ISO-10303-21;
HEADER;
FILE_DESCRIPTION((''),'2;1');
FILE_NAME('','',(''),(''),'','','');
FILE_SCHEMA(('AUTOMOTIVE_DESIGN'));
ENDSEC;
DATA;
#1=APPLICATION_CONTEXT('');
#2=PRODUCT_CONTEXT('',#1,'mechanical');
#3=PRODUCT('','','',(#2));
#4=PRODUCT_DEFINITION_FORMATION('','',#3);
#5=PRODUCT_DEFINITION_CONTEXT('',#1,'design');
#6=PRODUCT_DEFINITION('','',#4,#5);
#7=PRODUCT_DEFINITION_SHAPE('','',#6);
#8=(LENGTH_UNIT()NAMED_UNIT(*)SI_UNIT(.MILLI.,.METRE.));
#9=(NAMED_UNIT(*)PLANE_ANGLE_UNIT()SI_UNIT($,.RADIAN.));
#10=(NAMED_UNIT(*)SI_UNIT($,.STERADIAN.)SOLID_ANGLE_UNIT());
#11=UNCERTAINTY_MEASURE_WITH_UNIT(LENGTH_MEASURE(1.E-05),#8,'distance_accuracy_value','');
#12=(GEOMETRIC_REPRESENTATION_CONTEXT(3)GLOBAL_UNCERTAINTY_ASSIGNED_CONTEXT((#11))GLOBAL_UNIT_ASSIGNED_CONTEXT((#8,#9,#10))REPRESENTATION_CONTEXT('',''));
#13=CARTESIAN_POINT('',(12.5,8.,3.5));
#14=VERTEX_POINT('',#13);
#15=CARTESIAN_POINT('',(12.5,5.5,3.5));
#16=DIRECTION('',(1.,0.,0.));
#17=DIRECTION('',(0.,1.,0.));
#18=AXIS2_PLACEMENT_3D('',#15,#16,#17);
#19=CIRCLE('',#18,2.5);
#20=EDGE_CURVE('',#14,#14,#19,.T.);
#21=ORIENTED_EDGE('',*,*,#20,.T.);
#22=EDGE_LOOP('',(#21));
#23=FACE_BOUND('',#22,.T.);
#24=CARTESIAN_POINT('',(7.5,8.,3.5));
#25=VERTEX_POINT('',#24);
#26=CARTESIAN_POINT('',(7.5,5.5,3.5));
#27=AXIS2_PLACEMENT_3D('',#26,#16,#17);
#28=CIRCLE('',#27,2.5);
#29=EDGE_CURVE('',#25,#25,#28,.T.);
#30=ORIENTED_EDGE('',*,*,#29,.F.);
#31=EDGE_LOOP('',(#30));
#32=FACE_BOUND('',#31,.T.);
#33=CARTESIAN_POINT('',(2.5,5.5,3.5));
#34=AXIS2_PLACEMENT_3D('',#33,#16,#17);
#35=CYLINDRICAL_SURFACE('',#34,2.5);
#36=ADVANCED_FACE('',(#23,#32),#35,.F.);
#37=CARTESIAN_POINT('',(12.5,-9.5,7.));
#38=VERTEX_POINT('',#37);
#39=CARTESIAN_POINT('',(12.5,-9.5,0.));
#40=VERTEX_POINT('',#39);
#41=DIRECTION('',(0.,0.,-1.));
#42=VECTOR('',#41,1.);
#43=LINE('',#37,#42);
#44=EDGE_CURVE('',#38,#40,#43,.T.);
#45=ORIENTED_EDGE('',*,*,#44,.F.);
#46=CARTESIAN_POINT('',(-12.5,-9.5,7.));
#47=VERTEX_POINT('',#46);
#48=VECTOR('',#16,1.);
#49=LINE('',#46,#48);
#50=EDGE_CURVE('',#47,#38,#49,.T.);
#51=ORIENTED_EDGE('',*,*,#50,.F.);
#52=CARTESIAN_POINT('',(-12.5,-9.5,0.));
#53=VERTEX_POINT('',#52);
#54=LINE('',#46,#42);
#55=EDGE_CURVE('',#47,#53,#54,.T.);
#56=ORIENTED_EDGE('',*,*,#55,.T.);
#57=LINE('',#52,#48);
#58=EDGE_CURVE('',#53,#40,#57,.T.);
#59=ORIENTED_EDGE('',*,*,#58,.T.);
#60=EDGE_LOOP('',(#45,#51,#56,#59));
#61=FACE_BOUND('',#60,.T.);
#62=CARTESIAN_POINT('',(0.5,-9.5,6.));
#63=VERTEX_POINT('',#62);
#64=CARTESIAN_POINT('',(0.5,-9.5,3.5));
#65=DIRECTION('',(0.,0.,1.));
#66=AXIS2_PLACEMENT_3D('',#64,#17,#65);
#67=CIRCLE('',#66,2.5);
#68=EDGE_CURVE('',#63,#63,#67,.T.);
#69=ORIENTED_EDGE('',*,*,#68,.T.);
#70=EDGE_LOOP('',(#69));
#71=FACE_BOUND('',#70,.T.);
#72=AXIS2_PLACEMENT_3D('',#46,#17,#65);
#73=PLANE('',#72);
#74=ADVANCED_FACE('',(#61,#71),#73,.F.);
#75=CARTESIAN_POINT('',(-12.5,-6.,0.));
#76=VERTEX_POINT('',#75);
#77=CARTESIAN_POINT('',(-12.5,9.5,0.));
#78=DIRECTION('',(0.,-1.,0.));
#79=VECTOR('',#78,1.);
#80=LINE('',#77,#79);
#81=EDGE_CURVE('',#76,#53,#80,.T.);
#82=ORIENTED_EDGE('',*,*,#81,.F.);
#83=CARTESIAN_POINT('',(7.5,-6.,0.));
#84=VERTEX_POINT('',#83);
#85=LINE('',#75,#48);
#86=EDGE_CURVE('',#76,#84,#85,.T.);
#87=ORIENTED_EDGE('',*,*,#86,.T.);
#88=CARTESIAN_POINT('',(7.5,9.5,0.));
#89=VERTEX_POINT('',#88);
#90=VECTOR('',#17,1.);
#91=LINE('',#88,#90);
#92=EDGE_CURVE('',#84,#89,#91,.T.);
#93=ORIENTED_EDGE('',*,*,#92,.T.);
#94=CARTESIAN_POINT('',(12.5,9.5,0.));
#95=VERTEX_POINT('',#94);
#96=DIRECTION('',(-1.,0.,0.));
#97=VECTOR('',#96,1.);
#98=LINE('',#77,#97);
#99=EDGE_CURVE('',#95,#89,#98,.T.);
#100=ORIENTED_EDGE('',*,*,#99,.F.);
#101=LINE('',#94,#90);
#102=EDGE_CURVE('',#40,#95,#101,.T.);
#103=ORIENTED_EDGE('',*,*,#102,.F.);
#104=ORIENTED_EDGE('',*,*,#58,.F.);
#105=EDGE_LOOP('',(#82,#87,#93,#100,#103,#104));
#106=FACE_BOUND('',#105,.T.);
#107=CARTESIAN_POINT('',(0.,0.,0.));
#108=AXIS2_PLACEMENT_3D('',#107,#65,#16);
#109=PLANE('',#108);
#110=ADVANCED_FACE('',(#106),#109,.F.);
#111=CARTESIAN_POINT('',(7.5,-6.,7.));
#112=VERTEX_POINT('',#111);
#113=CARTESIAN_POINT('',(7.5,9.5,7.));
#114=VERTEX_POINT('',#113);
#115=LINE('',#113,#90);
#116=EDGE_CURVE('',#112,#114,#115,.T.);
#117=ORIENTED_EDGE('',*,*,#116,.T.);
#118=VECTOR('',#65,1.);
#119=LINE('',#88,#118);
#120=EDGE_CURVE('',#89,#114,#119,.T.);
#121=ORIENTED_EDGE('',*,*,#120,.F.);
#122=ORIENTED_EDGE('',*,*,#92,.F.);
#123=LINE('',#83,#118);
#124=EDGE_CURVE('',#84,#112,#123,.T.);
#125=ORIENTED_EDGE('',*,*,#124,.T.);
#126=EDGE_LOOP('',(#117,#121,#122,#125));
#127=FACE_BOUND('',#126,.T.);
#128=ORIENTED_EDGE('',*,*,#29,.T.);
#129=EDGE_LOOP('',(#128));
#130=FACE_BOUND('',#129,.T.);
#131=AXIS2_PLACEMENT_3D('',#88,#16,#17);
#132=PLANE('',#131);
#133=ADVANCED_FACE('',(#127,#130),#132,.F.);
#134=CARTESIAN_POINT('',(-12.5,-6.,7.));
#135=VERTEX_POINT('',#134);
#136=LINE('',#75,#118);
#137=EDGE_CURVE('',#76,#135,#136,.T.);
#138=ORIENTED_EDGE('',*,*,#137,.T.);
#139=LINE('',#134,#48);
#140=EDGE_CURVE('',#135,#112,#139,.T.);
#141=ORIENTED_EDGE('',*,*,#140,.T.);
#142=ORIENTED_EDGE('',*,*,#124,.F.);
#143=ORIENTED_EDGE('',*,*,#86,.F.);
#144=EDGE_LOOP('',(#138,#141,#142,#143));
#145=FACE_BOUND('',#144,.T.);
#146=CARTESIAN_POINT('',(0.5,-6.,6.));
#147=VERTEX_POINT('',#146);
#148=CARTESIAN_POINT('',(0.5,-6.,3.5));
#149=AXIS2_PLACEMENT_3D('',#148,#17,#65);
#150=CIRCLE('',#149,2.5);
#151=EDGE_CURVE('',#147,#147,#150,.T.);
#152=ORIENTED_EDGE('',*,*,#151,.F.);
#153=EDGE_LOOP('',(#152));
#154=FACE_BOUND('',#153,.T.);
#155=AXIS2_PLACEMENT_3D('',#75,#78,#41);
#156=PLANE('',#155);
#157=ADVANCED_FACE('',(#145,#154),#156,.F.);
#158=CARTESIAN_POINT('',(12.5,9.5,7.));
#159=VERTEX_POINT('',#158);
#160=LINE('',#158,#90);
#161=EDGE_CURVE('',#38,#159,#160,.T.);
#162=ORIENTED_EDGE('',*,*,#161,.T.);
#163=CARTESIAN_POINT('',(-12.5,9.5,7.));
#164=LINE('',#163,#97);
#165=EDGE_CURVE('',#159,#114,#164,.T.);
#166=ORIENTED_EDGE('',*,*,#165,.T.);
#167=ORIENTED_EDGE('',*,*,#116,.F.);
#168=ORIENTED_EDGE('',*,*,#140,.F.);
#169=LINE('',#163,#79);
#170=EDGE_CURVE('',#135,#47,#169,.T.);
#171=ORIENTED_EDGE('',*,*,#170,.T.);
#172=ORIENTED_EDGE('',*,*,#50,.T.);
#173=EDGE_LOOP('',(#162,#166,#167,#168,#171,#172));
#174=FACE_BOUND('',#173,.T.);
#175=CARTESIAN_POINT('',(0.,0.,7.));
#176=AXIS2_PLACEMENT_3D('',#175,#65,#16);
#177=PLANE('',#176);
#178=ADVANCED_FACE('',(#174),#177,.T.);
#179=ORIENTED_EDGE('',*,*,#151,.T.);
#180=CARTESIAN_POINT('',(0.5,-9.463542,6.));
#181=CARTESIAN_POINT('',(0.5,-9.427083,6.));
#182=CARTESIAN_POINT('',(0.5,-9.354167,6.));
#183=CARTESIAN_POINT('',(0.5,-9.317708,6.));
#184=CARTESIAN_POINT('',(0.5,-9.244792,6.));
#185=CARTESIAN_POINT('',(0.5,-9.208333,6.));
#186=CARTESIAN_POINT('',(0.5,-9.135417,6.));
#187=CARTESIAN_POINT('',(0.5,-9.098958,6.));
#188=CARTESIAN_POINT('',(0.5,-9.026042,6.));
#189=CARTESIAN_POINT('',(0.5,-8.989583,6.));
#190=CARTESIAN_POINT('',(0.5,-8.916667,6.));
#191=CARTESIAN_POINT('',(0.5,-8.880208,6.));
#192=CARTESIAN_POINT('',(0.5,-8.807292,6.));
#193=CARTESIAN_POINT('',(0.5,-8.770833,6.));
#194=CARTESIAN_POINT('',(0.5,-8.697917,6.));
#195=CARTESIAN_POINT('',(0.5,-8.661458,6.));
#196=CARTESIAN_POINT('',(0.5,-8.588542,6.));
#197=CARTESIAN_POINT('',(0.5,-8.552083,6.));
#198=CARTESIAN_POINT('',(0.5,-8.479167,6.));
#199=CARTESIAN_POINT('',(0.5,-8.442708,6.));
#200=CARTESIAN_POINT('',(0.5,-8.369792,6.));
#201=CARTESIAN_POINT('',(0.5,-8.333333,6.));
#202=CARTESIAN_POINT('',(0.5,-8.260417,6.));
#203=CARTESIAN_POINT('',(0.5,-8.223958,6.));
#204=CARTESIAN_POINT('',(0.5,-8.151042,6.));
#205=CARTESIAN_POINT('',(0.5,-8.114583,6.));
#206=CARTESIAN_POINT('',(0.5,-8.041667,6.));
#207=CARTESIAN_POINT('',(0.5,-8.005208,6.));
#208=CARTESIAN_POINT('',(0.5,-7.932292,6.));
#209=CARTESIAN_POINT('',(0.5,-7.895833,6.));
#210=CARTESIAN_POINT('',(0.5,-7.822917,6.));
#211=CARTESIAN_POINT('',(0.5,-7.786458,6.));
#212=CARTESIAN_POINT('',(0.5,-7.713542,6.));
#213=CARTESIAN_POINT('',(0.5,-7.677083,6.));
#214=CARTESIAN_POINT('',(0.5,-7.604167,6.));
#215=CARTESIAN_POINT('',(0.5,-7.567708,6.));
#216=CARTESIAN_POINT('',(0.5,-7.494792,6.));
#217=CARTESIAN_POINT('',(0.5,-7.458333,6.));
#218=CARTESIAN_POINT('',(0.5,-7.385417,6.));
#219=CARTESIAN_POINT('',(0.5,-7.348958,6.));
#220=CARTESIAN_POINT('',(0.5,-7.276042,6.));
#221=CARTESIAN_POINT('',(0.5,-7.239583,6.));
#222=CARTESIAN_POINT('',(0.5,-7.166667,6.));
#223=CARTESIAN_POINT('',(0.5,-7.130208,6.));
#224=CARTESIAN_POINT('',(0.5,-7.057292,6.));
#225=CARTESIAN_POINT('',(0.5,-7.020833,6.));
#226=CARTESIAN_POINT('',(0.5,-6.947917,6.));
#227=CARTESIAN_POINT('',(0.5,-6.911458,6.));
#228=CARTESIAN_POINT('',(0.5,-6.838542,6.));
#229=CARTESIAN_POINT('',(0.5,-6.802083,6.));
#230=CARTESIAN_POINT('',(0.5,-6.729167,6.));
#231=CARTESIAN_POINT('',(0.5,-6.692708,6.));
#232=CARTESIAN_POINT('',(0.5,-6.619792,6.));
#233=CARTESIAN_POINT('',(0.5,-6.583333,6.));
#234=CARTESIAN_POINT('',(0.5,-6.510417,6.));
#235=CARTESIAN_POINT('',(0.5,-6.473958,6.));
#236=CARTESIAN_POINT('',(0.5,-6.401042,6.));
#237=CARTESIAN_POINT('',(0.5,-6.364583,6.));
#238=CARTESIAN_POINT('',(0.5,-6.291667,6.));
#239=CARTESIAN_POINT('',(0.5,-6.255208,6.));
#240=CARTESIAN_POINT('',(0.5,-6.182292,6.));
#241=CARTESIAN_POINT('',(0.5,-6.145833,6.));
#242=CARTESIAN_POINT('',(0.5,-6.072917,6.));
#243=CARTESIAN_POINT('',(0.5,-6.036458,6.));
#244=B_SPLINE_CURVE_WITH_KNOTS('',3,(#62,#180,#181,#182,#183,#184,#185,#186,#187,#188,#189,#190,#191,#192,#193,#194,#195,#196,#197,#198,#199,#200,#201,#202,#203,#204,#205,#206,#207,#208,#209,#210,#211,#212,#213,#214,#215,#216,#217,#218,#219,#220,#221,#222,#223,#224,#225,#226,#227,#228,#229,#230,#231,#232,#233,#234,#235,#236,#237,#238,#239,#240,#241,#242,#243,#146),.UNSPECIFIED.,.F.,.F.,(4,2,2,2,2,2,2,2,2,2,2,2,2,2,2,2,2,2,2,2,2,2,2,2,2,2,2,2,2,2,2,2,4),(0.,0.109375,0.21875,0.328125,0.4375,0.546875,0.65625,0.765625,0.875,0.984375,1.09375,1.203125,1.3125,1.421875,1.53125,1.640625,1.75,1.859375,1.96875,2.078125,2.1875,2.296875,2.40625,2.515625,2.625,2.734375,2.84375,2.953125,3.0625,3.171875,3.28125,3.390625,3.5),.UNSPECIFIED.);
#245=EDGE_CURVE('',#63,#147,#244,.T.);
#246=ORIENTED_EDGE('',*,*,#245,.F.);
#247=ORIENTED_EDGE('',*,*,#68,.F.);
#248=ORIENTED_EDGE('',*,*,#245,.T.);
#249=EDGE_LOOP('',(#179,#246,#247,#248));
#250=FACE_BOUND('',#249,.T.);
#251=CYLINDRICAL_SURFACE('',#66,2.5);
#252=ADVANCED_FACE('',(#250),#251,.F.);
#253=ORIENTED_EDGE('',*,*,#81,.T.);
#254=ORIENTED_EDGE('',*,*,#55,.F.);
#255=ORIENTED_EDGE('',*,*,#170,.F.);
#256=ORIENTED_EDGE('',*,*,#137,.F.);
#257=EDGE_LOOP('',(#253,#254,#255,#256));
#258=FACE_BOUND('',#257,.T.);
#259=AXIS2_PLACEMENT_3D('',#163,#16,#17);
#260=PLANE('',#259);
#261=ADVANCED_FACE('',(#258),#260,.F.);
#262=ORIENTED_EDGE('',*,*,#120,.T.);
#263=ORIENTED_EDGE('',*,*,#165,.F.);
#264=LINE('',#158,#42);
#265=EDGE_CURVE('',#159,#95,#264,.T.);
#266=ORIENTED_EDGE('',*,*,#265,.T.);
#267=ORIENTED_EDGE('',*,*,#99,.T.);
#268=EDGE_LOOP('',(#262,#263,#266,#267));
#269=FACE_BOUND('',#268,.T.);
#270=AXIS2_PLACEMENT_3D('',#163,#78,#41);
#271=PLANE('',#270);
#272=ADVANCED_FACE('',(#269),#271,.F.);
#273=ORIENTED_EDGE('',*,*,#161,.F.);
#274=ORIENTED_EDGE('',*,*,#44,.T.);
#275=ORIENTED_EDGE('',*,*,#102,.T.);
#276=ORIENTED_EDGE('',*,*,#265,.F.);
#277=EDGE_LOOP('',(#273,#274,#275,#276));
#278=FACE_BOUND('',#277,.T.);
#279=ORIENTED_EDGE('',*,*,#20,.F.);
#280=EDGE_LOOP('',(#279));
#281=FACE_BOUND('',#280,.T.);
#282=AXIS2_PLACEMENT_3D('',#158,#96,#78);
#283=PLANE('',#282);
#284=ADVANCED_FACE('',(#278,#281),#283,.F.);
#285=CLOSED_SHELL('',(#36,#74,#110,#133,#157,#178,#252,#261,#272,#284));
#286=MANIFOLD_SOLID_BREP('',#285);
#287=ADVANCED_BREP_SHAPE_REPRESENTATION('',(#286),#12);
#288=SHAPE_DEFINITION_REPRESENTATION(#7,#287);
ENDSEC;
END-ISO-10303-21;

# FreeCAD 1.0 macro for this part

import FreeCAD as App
import Part
import Sketcher
from FreeCAD import Vector


def add_polygon(sketch, points):
    """Adds a closed chain of lines whose ends are joined by coincident constraints."""
    first, n = sketch.GeometryCount, len(points)
    for a, b in zip(points, points[1:] + points[:1]):
        sketch.addGeometry(Part.LineSegment(App.Vector(*a, 0), App.Vector(*b, 0)), False)
    for i in range(n):
        sketch.addConstraint(Sketcher.Constraint("Coincident", first + i, 2, first + (i + 1) % n, 1))

doc = App.newDocument("Part")
body = doc.addObject("PartDesign::Body", "Body")

sketch1 = body.newObject("Sketcher::SketchObject", "Sketch")
sketch1.AttachmentSupport = (doc.getObject("XY_Plane"), [""])
sketch1.MapMode = "FlatFace"
add_polygon(sketch1, [(-12, 10), (-12, -10), (12, -10), (12, 10)])
sketch1.addConstraint(Sketcher.Constraint("Vertical", 0))
sketch1.addConstraint(Sketcher.Constraint("Horizontal", 1))
sketch1.addConstraint(Sketcher.Constraint("Vertical", 2))
sketch1.addConstraint(Sketcher.Constraint("Horizontal", 3))
sketch1.addConstraint(Sketcher.Constraint("Symmetric", 0, 2, 2, 2, -1, 1))
sketch1.addConstraint(Sketcher.Constraint("DistanceX", 1, 1, 1, 2, 25.0))
sketch1.addConstraint(Sketcher.Constraint("DistanceY", 0, 2, 0, 1, 19.0))
pad1 = body.newObject("PartDesign::Pad", "Pad")
pad1.Profile = sketch1
pad1.Length = 7

sketch2 = body.newObject("Sketcher::SketchObject", "Sketch001")
sketch2.AttachmentSupport = (doc.getObject("XY_Plane"), [""])
sketch2.MapMode = "FlatFace"
sketch2.AttachmentOffset = App.Placement(Vector(0, 0, 7), App.Rotation())
add_polygon(sketch2, [(-12, 10), (-12, -6), (8, -6), (8, 10)])
sketch2.addConstraint(Sketcher.Constraint("Vertical", 0))
sketch2.addConstraint(Sketcher.Constraint("Horizontal", 1))
sketch2.addConstraint(Sketcher.Constraint("Vertical", 2))
sketch2.addConstraint(Sketcher.Constraint("Horizontal", 3))
sketch2.addConstraint(Sketcher.Constraint("DistanceX", 1, 1, 1, 2, 20.0))
sketch2.addConstraint(Sketcher.Constraint("DistanceY", 0, 2, 0, 1, 15.5))
sketch2.addConstraint(Sketcher.Constraint("DistanceY", 0, 2, -1, 1, 6.0))
sketch2.addConstraint(Sketcher.Constraint("DistanceX", 0, 2, -1, 1, 12.5))
pocket1 = body.newObject("PartDesign::Pocket", "Pocket")
pocket1.Profile = sketch2
pocket1.Length = 7

sketch3 = body.newObject("Sketcher::SketchObject", "Sketch002")
sketch3.AttachmentSupport = (doc.getObject("XZ_Plane"), [""])
sketch3.MapMode = "FlatFace"
sketch3.AttachmentOffset = App.Placement(Vector(0, 0, 6), App.Rotation())
sketch3.addGeometry(Part.Circle(Vector(0.5, 3.5, 0), Vector(0, 0, 1), 2.5), False)
sketch3.addConstraint(Sketcher.Constraint("Diameter", 0, 5.0))
sketch3.addConstraint(Sketcher.Constraint("DistanceX", -1, 1, 0, 3, 0.5))
sketch3.addConstraint(Sketcher.Constraint("DistanceY", -1, 1, 0, 3, 3.5))
pocket2 = body.newObject("PartDesign::Pocket", "Pocket001")
pocket2.Profile = sketch3
pocket2.Type = "ThroughAll"
pocket2.Reversed = True

sketch4 = body.newObject("Sketcher::SketchObject", "Sketch003")
sketch4.AttachmentSupport = (doc.getObject("YZ_Plane"), [""])
sketch4.MapMode = "FlatFace"
sketch4.AttachmentOffset = App.Placement(Vector(0, 0, 12.5), App.Rotation())
sketch4.addGeometry(Part.Circle(Vector(5.5, 3.5, 0), Vector(0, 0, 1), 2.5), False)
sketch4.addConstraint(Sketcher.Constraint("Diameter", 0, 5.0))
sketch4.addConstraint(Sketcher.Constraint("DistanceX", -1, 1, 0, 3, 5.5))
sketch4.addConstraint(Sketcher.Constraint("DistanceY", -1, 1, 0, 3, 3.5))
pocket3 = body.newObject("PartDesign::Pocket", "Pocket002")
pocket3.Profile = sketch4
pocket3.Length = 10

doc.recompute()
